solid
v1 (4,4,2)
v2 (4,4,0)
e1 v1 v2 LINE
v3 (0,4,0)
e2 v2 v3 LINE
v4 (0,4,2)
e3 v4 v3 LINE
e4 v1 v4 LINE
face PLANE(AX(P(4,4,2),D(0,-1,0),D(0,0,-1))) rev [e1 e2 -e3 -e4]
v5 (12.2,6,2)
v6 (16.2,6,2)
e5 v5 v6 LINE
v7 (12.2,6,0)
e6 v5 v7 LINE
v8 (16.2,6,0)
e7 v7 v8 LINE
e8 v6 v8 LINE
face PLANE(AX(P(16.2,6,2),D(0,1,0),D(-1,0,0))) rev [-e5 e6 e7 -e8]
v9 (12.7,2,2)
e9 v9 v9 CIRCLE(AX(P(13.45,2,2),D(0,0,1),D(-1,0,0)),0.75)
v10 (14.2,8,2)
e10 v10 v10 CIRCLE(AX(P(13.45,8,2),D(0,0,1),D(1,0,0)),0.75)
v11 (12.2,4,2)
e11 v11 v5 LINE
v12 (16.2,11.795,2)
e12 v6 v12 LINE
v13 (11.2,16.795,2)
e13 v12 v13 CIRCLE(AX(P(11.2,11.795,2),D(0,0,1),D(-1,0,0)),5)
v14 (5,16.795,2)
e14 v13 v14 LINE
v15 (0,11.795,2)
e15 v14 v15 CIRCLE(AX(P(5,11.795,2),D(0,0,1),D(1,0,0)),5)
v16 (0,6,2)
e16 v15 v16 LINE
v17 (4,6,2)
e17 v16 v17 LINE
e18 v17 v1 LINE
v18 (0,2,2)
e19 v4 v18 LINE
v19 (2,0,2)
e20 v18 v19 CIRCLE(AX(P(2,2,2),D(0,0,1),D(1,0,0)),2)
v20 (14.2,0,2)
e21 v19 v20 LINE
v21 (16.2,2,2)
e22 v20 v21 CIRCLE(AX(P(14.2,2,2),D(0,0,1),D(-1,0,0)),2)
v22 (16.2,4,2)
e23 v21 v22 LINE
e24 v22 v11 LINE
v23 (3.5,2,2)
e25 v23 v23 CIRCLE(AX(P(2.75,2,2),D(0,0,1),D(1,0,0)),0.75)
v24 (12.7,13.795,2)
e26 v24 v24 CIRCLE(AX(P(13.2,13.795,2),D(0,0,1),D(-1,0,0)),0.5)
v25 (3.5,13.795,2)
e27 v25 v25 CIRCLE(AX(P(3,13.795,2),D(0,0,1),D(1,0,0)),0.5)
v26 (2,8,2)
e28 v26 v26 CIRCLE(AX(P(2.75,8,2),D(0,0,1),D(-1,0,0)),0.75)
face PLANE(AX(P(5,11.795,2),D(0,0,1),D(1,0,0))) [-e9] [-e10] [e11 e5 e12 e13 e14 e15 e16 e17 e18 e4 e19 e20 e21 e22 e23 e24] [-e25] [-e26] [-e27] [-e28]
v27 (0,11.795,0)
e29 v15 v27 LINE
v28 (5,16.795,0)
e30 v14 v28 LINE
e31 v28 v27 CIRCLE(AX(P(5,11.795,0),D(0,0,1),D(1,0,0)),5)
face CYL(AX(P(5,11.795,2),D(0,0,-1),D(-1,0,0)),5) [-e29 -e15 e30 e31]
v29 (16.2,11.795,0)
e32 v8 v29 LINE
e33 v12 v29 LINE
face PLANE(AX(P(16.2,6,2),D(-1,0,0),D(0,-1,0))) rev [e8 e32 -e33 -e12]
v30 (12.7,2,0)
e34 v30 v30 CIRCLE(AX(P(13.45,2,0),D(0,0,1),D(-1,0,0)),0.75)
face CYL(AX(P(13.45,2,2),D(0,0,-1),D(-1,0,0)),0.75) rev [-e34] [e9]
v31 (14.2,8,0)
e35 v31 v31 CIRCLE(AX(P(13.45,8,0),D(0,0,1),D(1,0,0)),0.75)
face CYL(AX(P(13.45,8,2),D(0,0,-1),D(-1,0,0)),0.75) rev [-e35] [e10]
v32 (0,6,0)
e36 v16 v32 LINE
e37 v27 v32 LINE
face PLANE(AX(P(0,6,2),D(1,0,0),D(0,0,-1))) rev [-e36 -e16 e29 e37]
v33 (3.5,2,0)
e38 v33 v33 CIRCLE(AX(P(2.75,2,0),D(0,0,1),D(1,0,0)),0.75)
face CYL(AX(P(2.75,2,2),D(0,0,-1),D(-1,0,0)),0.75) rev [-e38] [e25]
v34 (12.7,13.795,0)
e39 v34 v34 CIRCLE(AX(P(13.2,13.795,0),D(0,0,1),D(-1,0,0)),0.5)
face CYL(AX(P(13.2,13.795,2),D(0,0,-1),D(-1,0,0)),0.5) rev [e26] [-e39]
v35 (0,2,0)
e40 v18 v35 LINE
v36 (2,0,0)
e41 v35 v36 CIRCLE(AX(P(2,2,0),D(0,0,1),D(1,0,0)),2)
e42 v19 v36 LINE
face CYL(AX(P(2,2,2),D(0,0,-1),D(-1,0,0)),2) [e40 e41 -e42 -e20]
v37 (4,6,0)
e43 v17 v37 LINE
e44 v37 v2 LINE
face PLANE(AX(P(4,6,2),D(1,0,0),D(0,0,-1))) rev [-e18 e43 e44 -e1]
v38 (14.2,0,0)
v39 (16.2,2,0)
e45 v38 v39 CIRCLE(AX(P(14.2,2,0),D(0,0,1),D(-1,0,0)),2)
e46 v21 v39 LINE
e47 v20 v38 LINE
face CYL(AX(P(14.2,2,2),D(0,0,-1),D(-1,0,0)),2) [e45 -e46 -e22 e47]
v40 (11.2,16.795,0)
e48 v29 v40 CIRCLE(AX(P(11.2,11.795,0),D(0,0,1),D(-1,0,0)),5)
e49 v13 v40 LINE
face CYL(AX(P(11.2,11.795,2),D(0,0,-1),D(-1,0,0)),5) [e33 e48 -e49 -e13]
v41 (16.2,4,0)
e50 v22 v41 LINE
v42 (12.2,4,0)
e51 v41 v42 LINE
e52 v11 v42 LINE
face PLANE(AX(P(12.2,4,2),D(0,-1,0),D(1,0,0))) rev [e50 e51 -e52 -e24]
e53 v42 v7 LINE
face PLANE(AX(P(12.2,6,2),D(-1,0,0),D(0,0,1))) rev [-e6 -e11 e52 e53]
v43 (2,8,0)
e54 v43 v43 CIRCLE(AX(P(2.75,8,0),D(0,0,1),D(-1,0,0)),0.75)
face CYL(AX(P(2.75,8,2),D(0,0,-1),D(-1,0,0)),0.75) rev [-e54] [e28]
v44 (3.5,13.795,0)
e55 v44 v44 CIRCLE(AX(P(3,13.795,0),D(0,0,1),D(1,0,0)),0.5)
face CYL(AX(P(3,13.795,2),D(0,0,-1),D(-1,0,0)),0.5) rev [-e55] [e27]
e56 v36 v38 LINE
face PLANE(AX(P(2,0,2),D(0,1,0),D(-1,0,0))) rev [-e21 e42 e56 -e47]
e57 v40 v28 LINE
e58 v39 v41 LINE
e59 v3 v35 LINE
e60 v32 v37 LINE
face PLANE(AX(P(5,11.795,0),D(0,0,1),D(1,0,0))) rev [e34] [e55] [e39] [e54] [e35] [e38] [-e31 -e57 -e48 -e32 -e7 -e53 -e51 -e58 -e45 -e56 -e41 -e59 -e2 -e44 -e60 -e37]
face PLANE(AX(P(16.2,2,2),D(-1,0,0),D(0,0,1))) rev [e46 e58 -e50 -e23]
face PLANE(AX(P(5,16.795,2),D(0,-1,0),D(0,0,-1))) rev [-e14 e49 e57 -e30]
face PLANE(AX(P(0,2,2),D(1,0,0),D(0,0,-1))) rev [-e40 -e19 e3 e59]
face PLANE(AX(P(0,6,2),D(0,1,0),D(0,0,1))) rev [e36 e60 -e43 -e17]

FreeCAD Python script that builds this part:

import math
import FreeCAD as App
import Part
import Sketcher

doc = App.newDocument("Part")
body = doc.addObject("PartDesign::Body", "Body")

# Sketch on XY plane
sketch1 = body.newObject("Sketcher::SketchObject", "Sketch")
sketch1.AttachmentSupport = (doc.getObject("XY_Plane"), [""])
sketch1.MapMode = "FlatFace"
sketch1.addGeometry([
    Part.LineSegment(App.Vector(0, 11.8, 0), App.Vector(0, 6, 0)),  # 0
    Part.LineSegment(App.Vector(0, 6, 0), App.Vector(4, 6, 0)),  # 1
    Part.LineSegment(App.Vector(4, 6, 0), App.Vector(4, 4, 0)),  # 2
    Part.LineSegment(App.Vector(4, 4, 0), App.Vector(0, 4, 0)),  # 3
    Part.LineSegment(App.Vector(0, 4, 0), App.Vector(0, 2, 0)),  # 4
    Part.ArcOfCircle(Part.Circle(App.Vector(2, 2, 0), App.Vector(0, 0, 1), 2), math.radians(-180), math.radians(-90)),  # 5
    Part.LineSegment(App.Vector(2, 0, 0), App.Vector(14.2, 0, 0)),  # 6
    Part.ArcOfCircle(Part.Circle(App.Vector(14.2, 2, 0), App.Vector(0, 0, 1), 2), math.radians(-90), math.radians(0)),  # 7
    Part.LineSegment(App.Vector(16.2, 2, 0), App.Vector(16.2, 4, 0)),  # 8
    Part.LineSegment(App.Vector(16.2, 4, 0), App.Vector(12.2, 4, 0)),  # 9
    Part.LineSegment(App.Vector(12.2, 4, 0), App.Vector(12.2, 6, 0)),  # 10
    Part.LineSegment(App.Vector(12.2, 6, 0), App.Vector(16.2, 6, 0)),  # 11
    Part.LineSegment(App.Vector(16.2, 6, 0), App.Vector(16.2, 11.8, 0)),  # 12
    Part.ArcOfCircle(Part.Circle(App.Vector(11.2, 11.8, 0), App.Vector(0, 0, 1), 5), math.radians(0), math.radians(90)),  # 13
    Part.LineSegment(App.Vector(11.2, 16.8, 0), App.Vector(5, 16.8, 0)),  # 14
    Part.ArcOfCircle(Part.Circle(App.Vector(5, 11.8, 0), App.Vector(0, 0, 1), 5), math.radians(90), math.radians(180)),  # 15
    Part.Circle(App.Vector(13.4, 2, 0), App.Vector(0, 0, 1), 0.8),  # 16
    Part.Circle(App.Vector(2.8, 2, 0), App.Vector(0, 0, 1), 0.8),  # 17
    Part.Circle(App.Vector(13.4, 8, 0), App.Vector(0, 0, 1), 0.8),  # 18
    Part.Circle(App.Vector(13.2, 13.8, 0), App.Vector(0, 0, 1), 0.5),  # 19
    Part.Circle(App.Vector(2.8, 8, 0), App.Vector(0, 0, 1), 0.8),  # 20
    Part.Circle(App.Vector(3, 13.8, 0), App.Vector(0, 0, 1), 0.5),  # 21
], False)
sketch1.addConstraint([
    Sketcher.Constraint("Coincident", 0, 2, 1, 1),
    Sketcher.Constraint("Coincident", 1, 2, 2, 1),
    Sketcher.Constraint("Coincident", 2, 2, 3, 1),
    Sketcher.Constraint("Coincident", 3, 2, 4, 1),
    Sketcher.Constraint("Tangent", 4, 2, 5, 1),
    Sketcher.Constraint("Tangent", 5, 2, 6, 1),
    Sketcher.Constraint("Tangent", 6, 2, 7, 1),
    Sketcher.Constraint("Tangent", 7, 2, 8, 1),
    Sketcher.Constraint("Coincident", 8, 2, 9, 1),
    Sketcher.Constraint("Coincident", 9, 2, 10, 1),
    Sketcher.Constraint("Coincident", 10, 2, 11, 1),
    Sketcher.Constraint("Coincident", 11, 2, 12, 1),
    Sketcher.Constraint("Tangent", 12, 2, 13, 1),
    Sketcher.Constraint("Tangent", 13, 2, 14, 1),
    Sketcher.Constraint("Tangent", 14, 2, 15, 1),
    Sketcher.Constraint("Tangent", 15, 2, 0, 1),
    Sketcher.Constraint("Vertical", 0),
    Sketcher.Constraint("Horizontal", 1),
    Sketcher.Constraint("Vertical", 2),
    Sketcher.Constraint("Horizontal", 3),
    Sketcher.Constraint("Vertical", 4),
    Sketcher.Constraint("Horizontal", 6),
    Sketcher.Constraint("Vertical", 8),
    Sketcher.Constraint("Horizontal", 9),
    Sketcher.Constraint("Vertical", 10),
    Sketcher.Constraint("Horizontal", 11),
    Sketcher.Constraint("Vertical", 12),
    Sketcher.Constraint("Horizontal", 14),
    Sketcher.Constraint("Equal", 5, 7),
    Sketcher.Constraint("Equal", 13, 15),
    Sketcher.Constraint("Equal", 16, 17),
    Sketcher.Constraint("Equal", 17, 18),
    Sketcher.Constraint("Equal", 18, 20),
    Sketcher.Constraint("Equal", 19, 21),
    Sketcher.Constraint("PointOnObject", 0, 2, -2),
    Sketcher.Constraint("PointOnObject", 3, 2, -2),
    Sketcher.Constraint("PointOnObject", 5, 2, -1),
    Sketcher.Constraint("Horizontal", 7, 3, 16, 3),
    Sketcher.Constraint("Horizontal", 16, 3, 17, 3),
    Sketcher.Constraint("Horizontal", 18, 3, 20, 3),
    Sketcher.Constraint("Horizontal", 19, 3, 21, 3),
    Sketcher.Constraint("Horizontal", 3, 2, 8, 2),
    Sketcher.Constraint("Horizontal", 1, 2, 10, 2),
    Sketcher.Constraint("Vertical", 16, 3, 18, 3),
    Sketcher.Constraint("Vertical", 17, 3, 20, 3),
    Sketcher.Constraint("Vertical", 8, 2, 11, 2),
    Sketcher.Constraint("Equal", 3, 9),
    Sketcher.Constraint("Equal", 2, 4),
    Sketcher.Constraint("Diameter", 19, 1.0),
    Sketcher.Constraint("Radius", 5, 2.0),
    Sketcher.Constraint("Radius", 13, 5.0),
    Sketcher.Constraint("Diameter", 16, 1.5),
    Sketcher.Constraint("DistanceX", 1, 1, 1, 2, 4.0),
    Sketcher.Constraint("DistanceY", 2, 2, 2, 1, 2.0),
    Sketcher.Constraint("DistanceX", 6, 1, 6, 2, 12.2),
    Sketcher.Constraint("DistanceY", -1, 1, 18, 3, 8.0),
    Sketcher.Constraint("DistanceX", -1, 1, 21, 3, 3.0),
    Sketcher.Constraint("DistanceX", 13, 3, 19, 3, 2.0),
    Sketcher.Constraint("DistanceY", 13, 3, 19, 3, 2.0),
    Sketcher.Constraint("DistanceX", 17, 3, 16, 3, 10.7),
    Sketcher.Constraint("DistanceY", 0, 2, 0, 1, 5.795),
    Sketcher.Constraint("DistanceX", -1, 1, 16, 3, 13.45),
])
pad1 = body.newObject("PartDesign::Pad", "Pad")
pad1.Profile = sketch1
pad1.Length = 2

doc.recompute()
